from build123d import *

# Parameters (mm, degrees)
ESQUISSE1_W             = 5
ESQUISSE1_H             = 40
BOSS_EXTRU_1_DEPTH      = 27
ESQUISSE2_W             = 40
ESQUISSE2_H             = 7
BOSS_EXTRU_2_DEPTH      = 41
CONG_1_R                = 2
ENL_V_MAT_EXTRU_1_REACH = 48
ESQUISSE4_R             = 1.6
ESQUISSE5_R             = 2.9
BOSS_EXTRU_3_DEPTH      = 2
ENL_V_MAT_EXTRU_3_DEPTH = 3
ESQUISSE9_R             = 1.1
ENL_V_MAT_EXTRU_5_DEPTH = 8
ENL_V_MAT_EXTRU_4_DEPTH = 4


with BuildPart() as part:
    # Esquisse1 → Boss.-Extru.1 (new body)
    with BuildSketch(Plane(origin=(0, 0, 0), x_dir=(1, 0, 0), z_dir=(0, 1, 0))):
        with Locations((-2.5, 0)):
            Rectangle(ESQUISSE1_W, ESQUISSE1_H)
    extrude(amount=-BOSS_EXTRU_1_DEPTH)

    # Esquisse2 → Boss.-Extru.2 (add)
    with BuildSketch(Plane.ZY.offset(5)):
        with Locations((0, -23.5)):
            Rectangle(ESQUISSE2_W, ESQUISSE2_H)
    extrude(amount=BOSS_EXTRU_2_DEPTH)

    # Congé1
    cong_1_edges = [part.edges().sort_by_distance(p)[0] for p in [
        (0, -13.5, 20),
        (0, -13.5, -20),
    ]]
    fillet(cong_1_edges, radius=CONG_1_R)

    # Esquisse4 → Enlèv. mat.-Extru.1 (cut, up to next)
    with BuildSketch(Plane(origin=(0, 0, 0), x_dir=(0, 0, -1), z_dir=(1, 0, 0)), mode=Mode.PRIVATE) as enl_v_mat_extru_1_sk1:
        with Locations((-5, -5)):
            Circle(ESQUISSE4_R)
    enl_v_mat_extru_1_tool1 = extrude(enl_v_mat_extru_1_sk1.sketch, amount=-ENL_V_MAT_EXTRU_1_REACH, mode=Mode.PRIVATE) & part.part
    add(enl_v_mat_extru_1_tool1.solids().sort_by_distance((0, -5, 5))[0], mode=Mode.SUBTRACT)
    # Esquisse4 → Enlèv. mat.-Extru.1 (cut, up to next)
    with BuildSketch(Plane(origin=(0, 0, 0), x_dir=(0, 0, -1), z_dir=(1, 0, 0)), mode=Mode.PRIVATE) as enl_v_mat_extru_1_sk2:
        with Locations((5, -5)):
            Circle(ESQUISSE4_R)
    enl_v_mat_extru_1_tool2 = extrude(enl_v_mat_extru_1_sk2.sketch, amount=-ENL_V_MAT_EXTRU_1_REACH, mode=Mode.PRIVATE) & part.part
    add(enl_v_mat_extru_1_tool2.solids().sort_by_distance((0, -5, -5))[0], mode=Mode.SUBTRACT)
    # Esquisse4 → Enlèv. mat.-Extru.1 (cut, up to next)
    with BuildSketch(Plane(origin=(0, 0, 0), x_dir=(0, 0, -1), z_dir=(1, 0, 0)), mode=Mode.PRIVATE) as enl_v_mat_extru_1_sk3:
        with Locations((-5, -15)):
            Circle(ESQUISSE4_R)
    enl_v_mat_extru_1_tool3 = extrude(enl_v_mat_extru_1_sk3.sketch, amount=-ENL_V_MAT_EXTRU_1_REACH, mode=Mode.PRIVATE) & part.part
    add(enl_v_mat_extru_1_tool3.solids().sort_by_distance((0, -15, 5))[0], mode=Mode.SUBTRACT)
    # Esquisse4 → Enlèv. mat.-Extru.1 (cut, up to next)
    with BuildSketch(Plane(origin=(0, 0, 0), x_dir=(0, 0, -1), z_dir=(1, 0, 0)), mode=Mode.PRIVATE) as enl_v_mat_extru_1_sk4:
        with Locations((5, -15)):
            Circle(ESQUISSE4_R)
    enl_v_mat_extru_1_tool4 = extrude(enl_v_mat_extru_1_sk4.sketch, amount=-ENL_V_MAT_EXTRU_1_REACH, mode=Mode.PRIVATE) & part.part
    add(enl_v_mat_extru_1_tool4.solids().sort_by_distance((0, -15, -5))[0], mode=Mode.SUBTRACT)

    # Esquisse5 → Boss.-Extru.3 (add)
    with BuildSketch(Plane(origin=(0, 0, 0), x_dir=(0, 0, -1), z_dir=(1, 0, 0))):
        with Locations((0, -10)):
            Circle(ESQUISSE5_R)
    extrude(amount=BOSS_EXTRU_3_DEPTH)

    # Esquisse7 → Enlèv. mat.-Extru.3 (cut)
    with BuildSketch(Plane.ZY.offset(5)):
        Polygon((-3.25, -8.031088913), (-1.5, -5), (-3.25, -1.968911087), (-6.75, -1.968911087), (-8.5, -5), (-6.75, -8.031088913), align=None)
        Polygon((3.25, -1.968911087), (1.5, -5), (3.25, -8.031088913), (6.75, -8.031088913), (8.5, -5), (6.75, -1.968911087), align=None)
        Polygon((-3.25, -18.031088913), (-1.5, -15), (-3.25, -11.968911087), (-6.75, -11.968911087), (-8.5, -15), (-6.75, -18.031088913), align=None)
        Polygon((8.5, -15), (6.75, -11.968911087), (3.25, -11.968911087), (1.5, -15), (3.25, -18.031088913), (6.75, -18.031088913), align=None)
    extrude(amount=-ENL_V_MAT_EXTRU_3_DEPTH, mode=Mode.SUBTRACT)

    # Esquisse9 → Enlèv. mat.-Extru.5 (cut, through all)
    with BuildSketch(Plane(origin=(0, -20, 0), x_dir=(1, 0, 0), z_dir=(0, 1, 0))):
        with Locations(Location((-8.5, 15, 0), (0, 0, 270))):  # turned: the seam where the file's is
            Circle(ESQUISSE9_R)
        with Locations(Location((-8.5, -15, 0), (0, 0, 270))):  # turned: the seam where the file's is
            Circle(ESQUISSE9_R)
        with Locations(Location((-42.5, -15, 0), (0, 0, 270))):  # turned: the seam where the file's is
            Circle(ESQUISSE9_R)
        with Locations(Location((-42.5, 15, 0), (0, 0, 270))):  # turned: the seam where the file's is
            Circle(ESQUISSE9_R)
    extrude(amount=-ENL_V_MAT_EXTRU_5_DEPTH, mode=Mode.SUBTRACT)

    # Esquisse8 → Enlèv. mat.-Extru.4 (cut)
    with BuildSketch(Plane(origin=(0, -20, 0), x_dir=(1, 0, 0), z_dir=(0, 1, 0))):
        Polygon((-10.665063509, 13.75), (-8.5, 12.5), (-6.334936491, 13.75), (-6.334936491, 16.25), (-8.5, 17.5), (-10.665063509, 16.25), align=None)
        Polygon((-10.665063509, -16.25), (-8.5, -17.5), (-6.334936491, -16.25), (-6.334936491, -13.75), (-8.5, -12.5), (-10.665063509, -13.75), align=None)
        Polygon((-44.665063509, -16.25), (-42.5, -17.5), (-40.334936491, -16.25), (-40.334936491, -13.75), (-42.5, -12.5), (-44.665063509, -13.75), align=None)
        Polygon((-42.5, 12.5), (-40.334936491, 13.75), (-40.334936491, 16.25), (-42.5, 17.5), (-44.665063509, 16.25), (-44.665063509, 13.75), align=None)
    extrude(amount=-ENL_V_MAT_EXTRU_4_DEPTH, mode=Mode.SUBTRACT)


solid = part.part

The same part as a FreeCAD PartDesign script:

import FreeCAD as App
import Part
import Sketcher
Q = App.Units.Quantity


def edges_at(feature, points):
    """Names of the edges that pass closest to the given points."""
    edges = feature.Shape.Edges
    near = lambda p: min(range(len(edges)), key=lambda i: edges[i].distToShape(Part.Vertex(*p))[0])
    return sorted({f"Edge{near(p) + 1}" for p in points})


def add_polygon(sketch, points):
    """Adds a closed chain of lines whose ends are joined by coincident constraints."""
    first, n = sketch.GeometryCount, len(points)
    for a, b in zip(points, points[1:] + points[:1]):
        sketch.addGeometry(Part.LineSegment(App.Vector(*a, 0), App.Vector(*b, 0)), False)
    for i in range(n):
        sketch.addConstraint(Sketcher.Constraint("Coincident", first + i, 2, first + (i + 1) % n, 1))

doc = App.newDocument("Part")
body = doc.addObject("PartDesign::Body", "Body")

# Sketch on XZ plane
sketch1 = body.newObject("Sketcher::SketchObject", "Sketch")
sketch1.AttachmentSupport = (doc.getObject("XZ_Plane"), [""])
sketch1.MapMode = "FlatFace"
add_polygon(sketch1, [(-5, -20), (-5, 20), (0, 20), (0, -20)])  # lines 0-3
sketch1.addConstraint([
    Sketcher.Constraint("Vertical", 0),
    Sketcher.Constraint("Horizontal", 1),
    Sketcher.Constraint("Vertical", 2),
    Sketcher.Constraint("Horizontal", 3),
    Sketcher.Constraint("Symmetric", 1, 2, 2, 2, -1, 1),
    Sketcher.Constraint("DistanceX", 1, 1, 1, 2, Q("5 mm")),
    Sketcher.Constraint("DistanceY", 0, 1, 0, 2, Q("40 mm")),
])
pad1 = body.newObject("PartDesign::Pad", "Pad")
pad1.Profile = sketch1
pad1.Length = 27

# Sketch on YZ plane
sketch2 = body.newObject("Sketcher::SketchObject", "Sketch001")
sketch2.AttachmentSupport = (doc.getObject("YZ_Plane"), [""])
sketch2.MapMode = "FlatFace"
sketch2.AttachmentOffset = App.Placement(App.Vector(0, 0, -5), App.Rotation())
add_polygon(sketch2, [(-20, -20), (-27, -20), (-27, 20), (-20, 20)])  # lines 0-3
sketch2.addConstraint([
    Sketcher.Constraint("Horizontal", 0),
    Sketcher.Constraint("Vertical", 1),
    Sketcher.Constraint("Horizontal", 2),
    Sketcher.Constraint("Vertical", 3),
    Sketcher.Constraint("DistanceX", 0, 2, 0, 1, Q("7 mm")),
    Sketcher.Constraint("DistanceY", 1, 1, 1, 2, Q("40 mm")),
    Sketcher.Constraint("DistanceX", 0, 2, -1, 1, Q("27 mm")),
    Sketcher.Constraint("DistanceY", 0, 2, -1, 1, Q("20 mm")),
])
pad2 = body.newObject("PartDesign::Pad", "Pad001")
pad2.Profile = sketch2
pad2.Length = 41
pad2.Reversed = True
doc.recompute()

fillet = body.newObject("PartDesign::Fillet", "Fillet")
fillet.Base = (pad2, edges_at(pad2, [(0, -13.5, 20), (0, -13.5, -20)]))
fillet.Radius = 2

# Sketch on YZ plane
sketch3 = body.newObject("Sketcher::SketchObject", "Sketch002")
sketch3.AttachmentSupport = (doc.getObject("YZ_Plane"), [""])
sketch3.MapMode = "FlatFace"
sketch3.addGeometry(Part.Circle(App.Vector(-5, 5, 0), App.Vector(0, 0, 1), 1.6), False)
sketch3.addConstraint([
    Sketcher.Constraint("Diameter", 0, Q("3.2 mm")),
    Sketcher.Constraint("DistanceX", 0, 3, -1, 1, Q("5 mm")),
    Sketcher.Constraint("DistanceY", -1, 1, 0, 3, Q("5 mm")),
])
pocket1 = body.newObject("PartDesign::Pocket", "Pocket")
pocket1.Profile = sketch3
pocket1.Type = "UpToFirst"

# Sketch on YZ plane
sketch4 = body.newObject("Sketcher::SketchObject", "Sketch003")
sketch4.AttachmentSupport = (doc.getObject("YZ_Plane"), [""])
sketch4.MapMode = "FlatFace"
sketch4.addGeometry(Part.Circle(App.Vector(-5, -5, 0), App.Vector(0, 0, 1), 1.6), False)
sketch4.addConstraint([
    Sketcher.Constraint("Diameter", 0, Q("3.2 mm")),
    Sketcher.Constraint("DistanceX", 0, 3, -1, 1, Q("5 mm")),
    Sketcher.Constraint("DistanceY", 0, 3, -1, 1, Q("5 mm")),
])
pocket2 = body.newObject("PartDesign::Pocket", "Pocket001")
pocket2.Profile = sketch4
pocket2.Type = "UpToFirst"

# Sketch on YZ plane
sketch5 = body.newObject("Sketcher::SketchObject", "Sketch004")
sketch5.AttachmentSupport = (doc.getObject("YZ_Plane"), [""])
sketch5.MapMode = "FlatFace"
sketch5.addGeometry(Part.Circle(App.Vector(-15, 5, 0), App.Vector(0, 0, 1), 1.6), False)
sketch5.addConstraint([
    Sketcher.Constraint("Diameter", 0, Q("3.2 mm")),
    Sketcher.Constraint("DistanceX", 0, 3, -1, 1, Q("15 mm")),
    Sketcher.Constraint("DistanceY", -1, 1, 0, 3, Q("5 mm")),
])
pocket3 = body.newObject("PartDesign::Pocket", "Pocket002")
pocket3.Profile = sketch5
pocket3.Type = "UpToFirst"

# Sketch on YZ plane
sketch6 = body.newObject("Sketcher::SketchObject", "Sketch005")
sketch6.AttachmentSupport = (doc.getObject("YZ_Plane"), [""])
sketch6.MapMode = "FlatFace"
sketch6.addGeometry(Part.Circle(App.Vector(-15, -5, 0), App.Vector(0, 0, 1), 1.6), False)
sketch6.addConstraint([
    Sketcher.Constraint("Diameter", 0, Q("3.2 mm")),
    Sketcher.Constraint("DistanceX", 0, 3, -1, 1, Q("15 mm")),
    Sketcher.Constraint("DistanceY", 0, 3, -1, 1, Q("5 mm")),
])
pocket4 = body.newObject("PartDesign::Pocket", "Pocket003")
pocket4.Profile = sketch6
pocket4.Type = "UpToFirst"

# Sketch on YZ plane
sketch7 = body.newObject("Sketcher::SketchObject", "Sketch006")
sketch7.AttachmentSupport = (doc.getObject("YZ_Plane"), [""])
sketch7.MapMode = "FlatFace"
sketch7.addGeometry(Part.Circle(App.Vector(-10, 0, 0), App.Vector(0, 0, 1), 2.9), False)
sketch7.addConstraint([
    Sketcher.Constraint("PointOnObject", 0, 3, -1),
    Sketcher.Constraint("Diameter", 0, Q("5.8 mm")),
    Sketcher.Constraint("DistanceX", 0, 3, -1, 1, Q("10 mm")),
])
pad3 = body.newObject("PartDesign::Pad", "Pad002")
pad3.Profile = sketch7
pad3.Length = 2

# Sketch on YZ plane
sketch8 = body.newObject("Sketcher::SketchObject", "Sketch007")
sketch8.AttachmentSupport = (doc.getObject("YZ_Plane"), [""])
sketch8.MapMode = "FlatFace"
sketch8.AttachmentOffset = App.Placement(App.Vector(0, 0, -5), App.Rotation())
add_polygon(sketch8, [(-8, -3.2), (-5, -1.5), (-2, -3.2), (-2, -6.8), (-5, -8.5), (-8, -6.8)])  # lines 0-5
add_polygon(sketch8, [(-2, 3.2), (-5, 1.5), (-8, 3.2), (-8, 6.8), (-5, 8.5), (-2, 6.8)])  # lines 6-11
add_polygon(sketch8, [(-18, -3.2), (-15, -1.5), (-12, -3.2), (-12, -6.8), (-15, -8.5), (-18, -6.8)])  # lines 12-17
add_polygon(sketch8, [(-15, 8.5), (-12, 6.8), (-12, 3.2), (-15, 1.5), (-18, 3.2), (-18, 6.8)])  # lines 18-23
sketch8.addConstraint([
    Sketcher.Constraint("Vertical", 2),
    Sketcher.Constraint("Vertical", 5),
    Sketcher.Constraint("Vertical", 8),
    Sketcher.Constraint("Vertical", 11),
    Sketcher.Constraint("Vertical", 14),
    Sketcher.Constraint("Vertical", 17),
    Sketcher.Constraint("Vertical", 19),
    Sketcher.Constraint("Vertical", 22),
    Sketcher.Constraint("Symmetric", 0, 2, 6, 2, -1),
    Sketcher.Constraint("Symmetric", 5, 2, 7, 2, -1),
    Sketcher.Constraint("Symmetric", 3, 2, 9, 2, -1),
    Sketcher.Constraint("Symmetric", 2, 2, 10, 2, -1),
    Sketcher.Constraint("Symmetric", 14, 2, 18, 2, -1),
    Sketcher.Constraint("Symmetric", 12, 2, 20, 2, -1),
    Sketcher.Constraint("Symmetric", 17, 2, 21, 2, -1),
    Sketcher.Constraint("Symmetric", 15, 2, 23, 2, -1),
    Sketcher.Constraint("Parallel", 0, 3),
    Sketcher.Constraint("Parallel", 1, 4),
    Sketcher.Constraint("Parallel", 3, 6),
    Sketcher.Constraint("Parallel", 4, 7),
    Sketcher.Constraint("Parallel", 6, 9),
    Sketcher.Constraint("Parallel", 9, 12),
    Sketcher.Constraint("Parallel", 10, 13),
    Sketcher.Constraint("Parallel", 12, 15),
    Sketcher.Constraint("Parallel", 13, 16),
    Sketcher.Constraint("Parallel", 15, 20),
    Sketcher.Constraint("Parallel", 20, 23),
    Sketcher.Constraint("Horizontal", 2, 2, 4, 2),
    Sketcher.Constraint("Horizontal", 1, 2, 5, 2),
    Sketcher.Constraint("Horizontal", 0, 2, 12, 2),
    Sketcher.Constraint("Horizontal", 5, 2, 13, 2),
    Sketcher.Constraint("Horizontal", 4, 2, 14, 2),
    Sketcher.Constraint("Horizontal", 3, 2, 15, 2),
    Sketcher.Constraint("Horizontal", 14, 2, 16, 2),
    Sketcher.Constraint("Angle", 0, Q("30 deg")),
    Sketcher.Constraint("DistanceY", 2, 2, 2, 1, Q("3.5 mm")),
    Sketcher.Constraint("DistanceX", 0, 2, -1, 1, Q("5 mm")),
    Sketcher.Constraint("DistanceX", 12, 2, -1, 1, Q("15 mm")),
    Sketcher.Constraint("DistanceY", 3, 2, 0, 2, Q("7 mm")),
    Sketcher.Constraint("DistanceY", 0, 2, 6, 2, Q("3 mm")),
])
pocket5 = body.newObject("PartDesign::Pocket", "Pocket004")
pocket5.Profile = sketch8
pocket5.Length = 3
pocket5.Reversed = True

# Sketch on XZ plane
sketch9 = body.newObject("Sketcher::SketchObject", "Sketch008")
sketch9.AttachmentSupport = (doc.getObject("XZ_Plane"), [""])
sketch9.MapMode = "FlatFace"
sketch9.AttachmentOffset = App.Placement(App.Vector(0, 0, 20), App.Rotation())
sketch9.addGeometry([
    Part.Circle(App.Vector(-8.5, -15, 0), App.Vector(0, 0, 1), 1.1),
    Part.Circle(App.Vector(-8.5, 15, 0), App.Vector(0, 0, 1), 1.1),
    Part.Circle(App.Vector(-42.5, 15, 0), App.Vector(0, 0, 1), 1.1),
    Part.Circle(App.Vector(-42.5, -15, 0), App.Vector(0, 0, 1), 1.1),
], False)
sketch9.addConstraint([
    Sketcher.Constraint("Equal", 0, 1),
    Sketcher.Constraint("Equal", 1, 2),
    Sketcher.Constraint("Equal", 2, 3),
    Sketcher.Constraint("Symmetric", 0, 3, 1, 3, -1),
    Sketcher.Constraint("Symmetric", 2, 3, 3, 3, -1),
    Sketcher.Constraint("Horizontal", 1, 3, 2, 3),
    Sketcher.Constraint("Diameter", 0, Q("2.2 mm")),
    Sketcher.Constraint("DistanceY", 0, 3, -1, 1, Q("15 mm")),
    Sketcher.Constraint("DistanceX", 2, 3, 1, 3, Q("34 mm")),
    Sketcher.Constraint("DistanceX", 0, 3, -1, 1, Q("8.5 mm")),
])
pocket6 = body.newObject("PartDesign::Pocket", "Pocket005")
pocket6.Profile = sketch9
pocket6.Type = "ThroughAll"
pocket6.Reversed = True

# Sketch on XZ plane
sketch10 = body.newObject("Sketcher::SketchObject", "Sketch009")
sketch10.AttachmentSupport = (doc.getObject("XZ_Plane"), [""])
sketch10.MapMode = "FlatFace"
sketch10.AttachmentOffset = App.Placement(App.Vector(0, 0, 20), App.Rotation())
add_polygon(sketch10, [(-10.7, -13.8), (-8.5, -12.5), (-6.3, -13.8), (-6.3, -16.2), (-8.5, -17.5), (-10.7, -16.2)])  # lines 0-5
add_polygon(sketch10, [(-10.7, 16.2), (-8.5, 17.5), (-6.3, 16.2), (-6.3, 13.8), (-8.5, 12.5), (-10.7, 13.8)])  # lines 6-11
add_polygon(sketch10, [(-44.7, 16.2), (-42.5, 17.5), (-40.3, 16.2), (-40.3, 13.8), (-42.5, 12.5), (-44.7, 13.8)])  # lines 12-17
add_polygon(sketch10, [(-42.5, -12.5), (-40.3, -13.8), (-40.3, -16.2), (-42.5, -17.5), (-44.7, -16.2), (-44.7, -13.8)])  # lines 18-23
sketch10.addConstraint([
    Sketcher.Constraint("Vertical", 2),
    Sketcher.Constraint("Vertical", 5),
    Sketcher.Constraint("Vertical", 8),
    Sketcher.Constraint("Vertical", 11),
    Sketcher.Constraint("Vertical", 14),
    Sketcher.Constraint("Vertical", 17),
    Sketcher.Constraint("Vertical", 19),
    Sketcher.Constraint("Vertical", 22),
    Sketcher.Constraint("Symmetric", 3, 2, 6, 2, -1),
    Sketcher.Constraint("Symmetric", 2, 2, 7, 2, -1),
    Sketcher.Constraint("Symmetric", 0, 2, 9, 2, -1),
    Sketcher.Constraint("Symmetric", 5, 2, 10, 2, -1),
    Sketcher.Constraint("Symmetric", 14, 2, 18, 2, -1),
    Sketcher.Constraint("Symmetric", 12, 2, 20, 2, -1),
    Sketcher.Constraint("Symmetric", 17, 2, 21, 2, -1),
    Sketcher.Constraint("Symmetric", 15, 2, 23, 2, -1),
    Sketcher.Constraint("Parallel", 0, 3),
    Sketcher.Constraint("Parallel", 1, 4),
    Sketcher.Constraint("Parallel", 3, 6),
    Sketcher.Constraint("Parallel", 4, 7),
    Sketcher.Constraint("Parallel", 6, 9),
    Sketcher.Constraint("Parallel", 9, 12),
    Sketcher.Constraint("Parallel", 10, 13),
    Sketcher.Constraint("Parallel", 12, 15),
    Sketcher.Constraint("Parallel", 13, 16),
    Sketcher.Constraint("Parallel", 15, 20),
    Sketcher.Constraint("Parallel", 20, 23),
    Sketcher.Constraint("Horizontal", 2, 2, 4, 2),
    Sketcher.Constraint("Horizontal", 1, 2, 5, 2),
    Sketcher.Constraint("Horizontal", 6, 2, 12, 2),
    Sketcher.Constraint("Horizontal", 11, 2, 13, 2),
    Sketcher.Constraint("Horizontal", 10, 2, 14, 2),
    Sketcher.Constraint("Horizontal", 9, 2, 15, 2),
    Sketcher.Constraint("Horizontal", 14, 2, 16, 2),
    Sketcher.Constraint("Angle", 0, Q("30 deg")),
    Sketcher.Constraint("DistanceY", 2, 2, 2, 1, Q("2.5 mm")),
    Sketcher.Constraint("DistanceY", 3, 2, 0, 2, Q("5 mm")),
    Sketcher.Constraint("DistanceY", 0, 2, 6, 2, Q("30 mm")),
    Sketcher.Constraint("DistanceX", 12, 2, 6, 2, Q("34 mm")),
    Sketcher.Constraint("DistanceX", 0, 2, -1, 1, Q("8.5 mm")),
])
pocket7 = body.newObject("PartDesign::Pocket", "Pocket006")
pocket7.Profile = sketch10
pocket7.Length = 4
pocket7.Reversed = True

doc.recompute()
